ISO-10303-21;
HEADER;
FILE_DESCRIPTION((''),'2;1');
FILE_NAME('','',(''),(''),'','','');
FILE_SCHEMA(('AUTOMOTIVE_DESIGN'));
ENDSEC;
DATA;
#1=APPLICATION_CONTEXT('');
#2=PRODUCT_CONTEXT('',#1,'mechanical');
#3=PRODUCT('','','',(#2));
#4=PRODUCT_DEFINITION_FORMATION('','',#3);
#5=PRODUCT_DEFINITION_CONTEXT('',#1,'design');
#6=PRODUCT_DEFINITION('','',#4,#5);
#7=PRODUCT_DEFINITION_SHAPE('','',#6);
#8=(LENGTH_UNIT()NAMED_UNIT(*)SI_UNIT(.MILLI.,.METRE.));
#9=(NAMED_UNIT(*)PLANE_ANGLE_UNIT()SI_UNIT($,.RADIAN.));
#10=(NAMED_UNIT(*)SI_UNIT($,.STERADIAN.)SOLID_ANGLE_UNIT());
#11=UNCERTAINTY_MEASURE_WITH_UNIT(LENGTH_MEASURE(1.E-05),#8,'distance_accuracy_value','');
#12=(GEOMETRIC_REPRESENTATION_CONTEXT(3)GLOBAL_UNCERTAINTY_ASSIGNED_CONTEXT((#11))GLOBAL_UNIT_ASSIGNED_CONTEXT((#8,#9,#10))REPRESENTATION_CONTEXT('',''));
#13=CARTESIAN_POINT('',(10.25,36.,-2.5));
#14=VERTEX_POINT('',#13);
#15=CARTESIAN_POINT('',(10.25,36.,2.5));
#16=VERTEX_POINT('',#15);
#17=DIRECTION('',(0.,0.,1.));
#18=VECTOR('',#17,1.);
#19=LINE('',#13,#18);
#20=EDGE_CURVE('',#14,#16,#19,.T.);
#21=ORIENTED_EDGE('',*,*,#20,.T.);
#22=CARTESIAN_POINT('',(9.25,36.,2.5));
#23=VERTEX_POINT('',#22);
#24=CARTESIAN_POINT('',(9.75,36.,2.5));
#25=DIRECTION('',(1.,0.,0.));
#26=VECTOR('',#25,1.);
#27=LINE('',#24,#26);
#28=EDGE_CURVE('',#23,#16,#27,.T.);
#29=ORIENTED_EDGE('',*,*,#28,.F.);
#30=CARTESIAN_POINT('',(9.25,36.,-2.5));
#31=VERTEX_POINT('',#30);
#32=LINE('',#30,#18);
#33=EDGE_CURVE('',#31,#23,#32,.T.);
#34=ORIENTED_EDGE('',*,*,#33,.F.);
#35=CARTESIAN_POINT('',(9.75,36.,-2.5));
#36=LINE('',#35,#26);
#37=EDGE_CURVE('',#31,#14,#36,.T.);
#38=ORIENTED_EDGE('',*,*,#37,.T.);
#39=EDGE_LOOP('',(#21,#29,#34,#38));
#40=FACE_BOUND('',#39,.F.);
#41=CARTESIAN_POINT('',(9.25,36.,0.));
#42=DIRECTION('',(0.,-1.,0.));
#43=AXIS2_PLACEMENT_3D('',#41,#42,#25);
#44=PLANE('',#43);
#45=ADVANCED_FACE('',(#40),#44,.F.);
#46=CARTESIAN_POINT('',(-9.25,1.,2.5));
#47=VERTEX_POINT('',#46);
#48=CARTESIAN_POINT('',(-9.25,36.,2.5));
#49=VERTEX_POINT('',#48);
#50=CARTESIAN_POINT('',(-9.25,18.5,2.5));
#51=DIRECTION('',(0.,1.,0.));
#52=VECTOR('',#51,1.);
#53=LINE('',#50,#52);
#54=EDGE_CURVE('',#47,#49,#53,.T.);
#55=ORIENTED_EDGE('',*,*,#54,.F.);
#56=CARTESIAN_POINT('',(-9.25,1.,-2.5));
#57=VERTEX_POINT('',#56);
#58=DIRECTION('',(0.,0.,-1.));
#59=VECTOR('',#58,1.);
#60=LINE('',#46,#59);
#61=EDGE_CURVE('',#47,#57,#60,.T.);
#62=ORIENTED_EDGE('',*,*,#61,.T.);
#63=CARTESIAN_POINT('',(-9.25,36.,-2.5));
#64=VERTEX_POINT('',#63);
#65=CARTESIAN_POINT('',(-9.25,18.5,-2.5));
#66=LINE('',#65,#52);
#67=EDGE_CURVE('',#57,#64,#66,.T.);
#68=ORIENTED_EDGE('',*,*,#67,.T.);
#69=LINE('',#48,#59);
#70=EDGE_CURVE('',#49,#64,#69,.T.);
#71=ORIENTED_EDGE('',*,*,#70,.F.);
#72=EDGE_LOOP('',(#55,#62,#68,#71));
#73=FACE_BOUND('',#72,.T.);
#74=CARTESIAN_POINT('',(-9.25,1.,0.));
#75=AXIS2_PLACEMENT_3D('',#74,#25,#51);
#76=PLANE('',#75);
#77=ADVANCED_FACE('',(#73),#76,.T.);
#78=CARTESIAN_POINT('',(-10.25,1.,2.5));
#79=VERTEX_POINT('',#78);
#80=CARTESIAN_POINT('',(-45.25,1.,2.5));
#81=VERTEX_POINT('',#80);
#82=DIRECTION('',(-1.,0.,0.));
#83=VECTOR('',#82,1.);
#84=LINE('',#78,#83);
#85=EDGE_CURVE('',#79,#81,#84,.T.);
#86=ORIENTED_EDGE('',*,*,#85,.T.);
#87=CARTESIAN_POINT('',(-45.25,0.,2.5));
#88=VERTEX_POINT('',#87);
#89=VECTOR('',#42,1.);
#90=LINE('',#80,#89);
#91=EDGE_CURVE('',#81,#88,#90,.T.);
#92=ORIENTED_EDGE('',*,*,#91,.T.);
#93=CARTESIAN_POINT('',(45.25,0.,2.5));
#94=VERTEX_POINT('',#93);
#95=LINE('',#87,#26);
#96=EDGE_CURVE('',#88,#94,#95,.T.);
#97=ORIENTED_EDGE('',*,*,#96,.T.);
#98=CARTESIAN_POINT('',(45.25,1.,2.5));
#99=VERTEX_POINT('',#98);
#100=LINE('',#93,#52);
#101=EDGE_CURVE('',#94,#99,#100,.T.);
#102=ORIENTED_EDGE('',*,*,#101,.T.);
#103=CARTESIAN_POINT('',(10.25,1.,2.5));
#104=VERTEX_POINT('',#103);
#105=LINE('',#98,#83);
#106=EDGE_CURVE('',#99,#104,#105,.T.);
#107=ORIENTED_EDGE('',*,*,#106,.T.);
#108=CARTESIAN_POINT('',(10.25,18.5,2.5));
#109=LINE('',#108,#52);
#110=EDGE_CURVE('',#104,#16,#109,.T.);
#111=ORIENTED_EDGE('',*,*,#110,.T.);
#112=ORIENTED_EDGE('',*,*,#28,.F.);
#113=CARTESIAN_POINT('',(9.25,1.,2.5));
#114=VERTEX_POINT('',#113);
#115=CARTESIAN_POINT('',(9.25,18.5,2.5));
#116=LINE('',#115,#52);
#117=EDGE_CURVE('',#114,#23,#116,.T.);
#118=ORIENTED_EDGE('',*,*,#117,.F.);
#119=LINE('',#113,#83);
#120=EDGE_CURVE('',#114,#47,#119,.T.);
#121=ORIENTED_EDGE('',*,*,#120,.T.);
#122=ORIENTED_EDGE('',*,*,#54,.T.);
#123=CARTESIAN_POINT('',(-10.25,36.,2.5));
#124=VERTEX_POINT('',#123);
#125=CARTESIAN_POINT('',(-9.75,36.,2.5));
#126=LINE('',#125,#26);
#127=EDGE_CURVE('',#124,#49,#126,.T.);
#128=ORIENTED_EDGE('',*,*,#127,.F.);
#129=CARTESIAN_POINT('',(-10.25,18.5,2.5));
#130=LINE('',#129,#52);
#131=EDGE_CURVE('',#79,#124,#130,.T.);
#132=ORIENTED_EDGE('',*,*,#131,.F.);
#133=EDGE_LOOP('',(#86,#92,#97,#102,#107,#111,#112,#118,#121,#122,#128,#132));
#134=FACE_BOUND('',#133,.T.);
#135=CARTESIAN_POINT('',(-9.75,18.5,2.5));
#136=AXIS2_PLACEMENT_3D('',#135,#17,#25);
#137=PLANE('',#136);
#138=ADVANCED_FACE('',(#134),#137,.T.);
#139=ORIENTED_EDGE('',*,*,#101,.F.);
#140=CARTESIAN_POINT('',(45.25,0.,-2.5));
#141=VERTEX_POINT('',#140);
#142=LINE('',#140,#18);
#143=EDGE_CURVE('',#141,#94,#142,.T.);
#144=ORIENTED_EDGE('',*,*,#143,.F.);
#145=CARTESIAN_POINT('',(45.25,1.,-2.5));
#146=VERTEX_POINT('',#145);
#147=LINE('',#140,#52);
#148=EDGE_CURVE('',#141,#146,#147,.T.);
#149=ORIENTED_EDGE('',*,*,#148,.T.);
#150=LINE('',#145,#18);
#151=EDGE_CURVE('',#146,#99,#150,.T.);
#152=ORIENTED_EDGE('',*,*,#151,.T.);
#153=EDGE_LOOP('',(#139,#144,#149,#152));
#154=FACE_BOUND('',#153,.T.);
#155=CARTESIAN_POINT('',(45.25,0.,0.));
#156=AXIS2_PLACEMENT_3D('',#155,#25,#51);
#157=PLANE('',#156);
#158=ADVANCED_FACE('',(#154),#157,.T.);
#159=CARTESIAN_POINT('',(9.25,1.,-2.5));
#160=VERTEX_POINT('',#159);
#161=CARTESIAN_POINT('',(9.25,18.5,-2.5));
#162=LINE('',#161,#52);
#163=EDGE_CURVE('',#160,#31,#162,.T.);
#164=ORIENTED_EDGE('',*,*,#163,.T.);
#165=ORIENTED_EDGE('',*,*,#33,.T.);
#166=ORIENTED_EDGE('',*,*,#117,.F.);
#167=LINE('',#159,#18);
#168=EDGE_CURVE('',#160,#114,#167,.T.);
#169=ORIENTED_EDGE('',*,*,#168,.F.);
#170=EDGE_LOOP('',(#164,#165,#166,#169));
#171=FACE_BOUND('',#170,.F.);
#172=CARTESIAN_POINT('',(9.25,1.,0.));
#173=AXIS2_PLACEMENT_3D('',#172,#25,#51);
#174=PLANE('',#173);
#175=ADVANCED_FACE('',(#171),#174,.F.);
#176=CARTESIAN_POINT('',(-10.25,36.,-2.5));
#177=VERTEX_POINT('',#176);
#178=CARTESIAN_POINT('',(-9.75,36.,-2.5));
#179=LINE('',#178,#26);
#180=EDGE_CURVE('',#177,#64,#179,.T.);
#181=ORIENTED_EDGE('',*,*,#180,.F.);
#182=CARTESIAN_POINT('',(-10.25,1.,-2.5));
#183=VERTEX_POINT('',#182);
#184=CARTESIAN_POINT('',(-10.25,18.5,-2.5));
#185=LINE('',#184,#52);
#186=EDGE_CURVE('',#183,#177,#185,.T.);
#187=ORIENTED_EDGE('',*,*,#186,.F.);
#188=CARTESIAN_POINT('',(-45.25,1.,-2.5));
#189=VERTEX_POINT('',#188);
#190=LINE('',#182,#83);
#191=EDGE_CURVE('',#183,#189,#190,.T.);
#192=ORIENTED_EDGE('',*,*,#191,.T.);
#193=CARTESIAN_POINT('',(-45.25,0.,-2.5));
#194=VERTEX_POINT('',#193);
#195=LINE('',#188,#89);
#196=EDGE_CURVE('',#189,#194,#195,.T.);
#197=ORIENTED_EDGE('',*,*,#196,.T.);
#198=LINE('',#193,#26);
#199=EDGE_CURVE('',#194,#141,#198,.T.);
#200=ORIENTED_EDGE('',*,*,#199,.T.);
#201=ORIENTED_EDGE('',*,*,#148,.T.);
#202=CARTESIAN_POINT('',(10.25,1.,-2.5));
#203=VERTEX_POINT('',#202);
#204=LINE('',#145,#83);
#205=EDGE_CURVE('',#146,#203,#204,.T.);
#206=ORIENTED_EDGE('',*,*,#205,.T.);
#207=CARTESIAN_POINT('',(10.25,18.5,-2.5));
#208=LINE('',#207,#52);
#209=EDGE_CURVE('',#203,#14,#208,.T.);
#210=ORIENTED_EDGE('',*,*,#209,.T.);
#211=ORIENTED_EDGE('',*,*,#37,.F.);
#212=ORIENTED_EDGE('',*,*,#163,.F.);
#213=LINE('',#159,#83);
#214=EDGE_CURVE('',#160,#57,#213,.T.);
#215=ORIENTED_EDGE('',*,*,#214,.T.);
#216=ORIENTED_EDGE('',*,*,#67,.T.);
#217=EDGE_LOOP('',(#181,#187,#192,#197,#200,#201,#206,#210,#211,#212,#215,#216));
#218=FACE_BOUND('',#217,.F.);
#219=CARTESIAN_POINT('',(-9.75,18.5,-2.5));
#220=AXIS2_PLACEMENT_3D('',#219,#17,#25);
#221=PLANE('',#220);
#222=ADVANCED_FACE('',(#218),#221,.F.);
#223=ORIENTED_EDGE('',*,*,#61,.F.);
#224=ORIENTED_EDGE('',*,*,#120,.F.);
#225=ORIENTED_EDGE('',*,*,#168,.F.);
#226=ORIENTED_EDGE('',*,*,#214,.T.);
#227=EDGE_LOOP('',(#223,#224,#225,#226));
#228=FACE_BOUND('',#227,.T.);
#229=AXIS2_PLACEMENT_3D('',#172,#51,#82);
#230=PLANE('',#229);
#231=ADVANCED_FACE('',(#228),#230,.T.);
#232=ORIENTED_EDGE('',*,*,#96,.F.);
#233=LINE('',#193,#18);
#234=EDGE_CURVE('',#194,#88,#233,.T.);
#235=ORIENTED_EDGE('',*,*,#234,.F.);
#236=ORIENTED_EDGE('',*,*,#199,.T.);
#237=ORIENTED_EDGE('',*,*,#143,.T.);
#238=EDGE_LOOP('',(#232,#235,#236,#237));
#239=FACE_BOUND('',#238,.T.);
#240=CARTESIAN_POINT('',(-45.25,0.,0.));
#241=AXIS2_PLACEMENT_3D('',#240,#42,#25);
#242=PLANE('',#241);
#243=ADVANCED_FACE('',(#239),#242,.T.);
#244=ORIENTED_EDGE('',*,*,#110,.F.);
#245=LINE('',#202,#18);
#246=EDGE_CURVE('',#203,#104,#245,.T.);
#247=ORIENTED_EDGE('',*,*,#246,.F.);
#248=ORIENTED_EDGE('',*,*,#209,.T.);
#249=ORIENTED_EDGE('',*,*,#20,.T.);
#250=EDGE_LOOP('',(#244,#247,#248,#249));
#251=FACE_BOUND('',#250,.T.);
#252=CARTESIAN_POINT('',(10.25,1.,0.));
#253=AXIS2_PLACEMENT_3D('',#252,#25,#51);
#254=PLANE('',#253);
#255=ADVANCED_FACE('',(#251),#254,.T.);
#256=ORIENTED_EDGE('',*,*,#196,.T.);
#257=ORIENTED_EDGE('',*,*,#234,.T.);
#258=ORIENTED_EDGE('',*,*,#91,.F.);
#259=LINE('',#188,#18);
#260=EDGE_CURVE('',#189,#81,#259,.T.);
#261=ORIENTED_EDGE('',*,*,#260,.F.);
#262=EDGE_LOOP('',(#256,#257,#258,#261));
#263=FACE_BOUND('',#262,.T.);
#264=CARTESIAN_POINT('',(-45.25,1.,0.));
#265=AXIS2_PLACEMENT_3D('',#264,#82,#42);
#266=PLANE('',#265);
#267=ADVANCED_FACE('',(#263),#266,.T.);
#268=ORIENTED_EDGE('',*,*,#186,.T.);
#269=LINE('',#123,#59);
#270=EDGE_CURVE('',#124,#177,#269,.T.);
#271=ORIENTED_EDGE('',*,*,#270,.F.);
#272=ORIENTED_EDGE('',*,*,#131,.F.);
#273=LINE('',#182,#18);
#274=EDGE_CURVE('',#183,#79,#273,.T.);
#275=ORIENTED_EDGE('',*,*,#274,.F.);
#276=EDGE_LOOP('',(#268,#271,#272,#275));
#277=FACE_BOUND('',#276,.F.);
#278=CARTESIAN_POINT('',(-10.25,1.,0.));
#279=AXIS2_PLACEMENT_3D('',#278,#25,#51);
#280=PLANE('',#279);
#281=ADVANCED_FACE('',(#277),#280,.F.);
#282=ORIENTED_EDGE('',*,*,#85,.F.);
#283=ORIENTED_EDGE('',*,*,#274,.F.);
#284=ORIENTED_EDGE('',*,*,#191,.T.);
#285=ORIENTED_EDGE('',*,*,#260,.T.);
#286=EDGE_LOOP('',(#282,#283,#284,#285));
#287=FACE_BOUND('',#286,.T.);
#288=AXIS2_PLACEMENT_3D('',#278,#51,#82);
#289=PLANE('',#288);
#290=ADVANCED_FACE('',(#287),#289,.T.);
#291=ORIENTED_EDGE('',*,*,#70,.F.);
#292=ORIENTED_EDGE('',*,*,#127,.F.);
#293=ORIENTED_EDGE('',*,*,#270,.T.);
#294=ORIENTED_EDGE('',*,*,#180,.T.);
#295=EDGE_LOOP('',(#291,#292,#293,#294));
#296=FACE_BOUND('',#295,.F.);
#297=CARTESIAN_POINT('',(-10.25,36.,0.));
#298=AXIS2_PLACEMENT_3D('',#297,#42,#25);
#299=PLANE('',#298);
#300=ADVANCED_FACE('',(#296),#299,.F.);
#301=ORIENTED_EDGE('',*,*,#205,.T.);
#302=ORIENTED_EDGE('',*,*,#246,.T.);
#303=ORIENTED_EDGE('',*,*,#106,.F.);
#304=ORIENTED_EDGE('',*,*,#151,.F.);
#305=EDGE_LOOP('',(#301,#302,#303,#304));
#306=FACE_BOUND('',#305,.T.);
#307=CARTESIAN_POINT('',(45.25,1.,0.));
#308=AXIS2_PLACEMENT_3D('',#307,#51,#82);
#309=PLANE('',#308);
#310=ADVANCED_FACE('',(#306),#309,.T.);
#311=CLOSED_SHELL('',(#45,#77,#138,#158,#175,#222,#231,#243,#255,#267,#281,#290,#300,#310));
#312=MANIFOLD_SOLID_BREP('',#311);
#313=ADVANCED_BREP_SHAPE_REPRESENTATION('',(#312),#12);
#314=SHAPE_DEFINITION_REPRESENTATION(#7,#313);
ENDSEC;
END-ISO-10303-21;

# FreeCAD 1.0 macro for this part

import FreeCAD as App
import Part
import Sketcher

doc = App.newDocument("Part")
params = doc.addObject("Spreadsheet::Sheet", "Params")
for row, (alias, value) in enumerate([
    ("sketch1_width", "35 mm"),
    ("sketch1_width2", "1 mm"),
    ("sketch1_width3", "90.5 mm"),
    ("pad1_length", "5 mm"),
], start=1):
    params.set(f"A{row}", alias)
    params.set(f"B{row}", "=" + value)
    params.setAlias(f"B{row}", alias)

body = doc.addObject("PartDesign::Body", "Body")

sketch1 = doc.addObject("Sketcher::SketchObject", "Sketch")
body.addObject(sketch1)
sketch1.AttachmentSupport = (doc.XY_Plane, [""])
sketch1.MapMode = "FlatFace"
sketch1.addGeometry([
    Part.LineSegment(App.Vector(-10.2, 36, 0), App.Vector(-10.2, 1, 0)),
    Part.LineSegment(App.Vector(-10.2, 1, 0), App.Vector(-45.2, 1, 0)),
    Part.LineSegment(App.Vector(-45.2, 1, 0), App.Vector(-45.2, 0, 0)),
    Part.LineSegment(App.Vector(-45.2, 0, 0), App.Vector(45.2, 0, 0)),
    Part.LineSegment(App.Vector(45.2, 0, 0), App.Vector(45.2, 1, 0)),
    Part.LineSegment(App.Vector(45.2, 1, 0), App.Vector(10.2, 1, 0)),
    Part.LineSegment(App.Vector(10.2, 1, 0), App.Vector(10.2, 36, 0)),
    Part.LineSegment(App.Vector(10.2, 36, 0), App.Vector(9.2, 36, 0)),
    Part.LineSegment(App.Vector(9.2, 36, 0), App.Vector(9.2, 1, 0)),
    Part.LineSegment(App.Vector(9.2, 1, 0), App.Vector(-9.2, 1, 0)),
    Part.LineSegment(App.Vector(-9.2, 1, 0), App.Vector(-9.2, 36, 0)),
    Part.LineSegment(App.Vector(-9.2, 36, 0), App.Vector(-10.2, 36, 0)),
], False)
sketch1.addConstraint([
    Sketcher.Constraint("Coincident", 0, 2, 1, 1),
    Sketcher.Constraint("Coincident", 1, 2, 2, 1),
    Sketcher.Constraint("Coincident", 2, 2, 3, 1),
    Sketcher.Constraint("Coincident", 3, 2, 4, 1),
    Sketcher.Constraint("Coincident", 4, 2, 5, 1),
    Sketcher.Constraint("Coincident", 5, 2, 6, 1),
    Sketcher.Constraint("Coincident", 6, 2, 7, 1),
    Sketcher.Constraint("Coincident", 7, 2, 8, 1),
    Sketcher.Constraint("Coincident", 8, 2, 9, 1),
    Sketcher.Constraint("Coincident", 9, 2, 10, 1),
    Sketcher.Constraint("Coincident", 10, 2, 11, 1),
    Sketcher.Constraint("Coincident", 11, 2, 0, 1),
    Sketcher.Constraint("Vertical", 0),
    Sketcher.Constraint("Horizontal", 1),
    Sketcher.Constraint("Vertical", 2),
    Sketcher.Constraint("Horizontal", 3),
    Sketcher.Constraint("Vertical", 4),
    Sketcher.Constraint("Horizontal", 5),
    Sketcher.Constraint("Vertical", 6),
    Sketcher.Constraint("Horizontal", 7),
    Sketcher.Constraint("Vertical", 8),
    Sketcher.Constraint("Horizontal", 9),
    Sketcher.Constraint("Vertical", 10),
    Sketcher.Constraint("Horizontal", 11),
    Sketcher.Constraint("Symmetric", 2, 2, 3, 2, -1, 1),
    Sketcher.Constraint("Symmetric", 0, 2, 5, 2, -2),
    Sketcher.Constraint("Symmetric", 7, 2, 10, 2, -2),
    Sketcher.Constraint("Horizontal", 5, 2, 8, 2),
    Sketcher.Constraint("Equal", 5, 0),
    Sketcher.Constraint("Equal", 11, 2),
    Sketcher.Constraint("DistanceX", 1, 2, 1, 1, 35.0),
    Sketcher.Constraint("DistanceX", 7, 2, 7, 1, 1.0),
    Sketcher.Constraint("DistanceX", 3, 1, 3, 2, 90.5),
])
sketch1.setExpression("Constraints[30]", "Params.sketch1_width")
sketch1.setExpression("Constraints[31]", "Params.sketch1_width2")
sketch1.setExpression("Constraints[32]", "Params.sketch1_width3")
pad1 = doc.addObject("PartDesign::Pad", "Pad")
body.addObject(pad1)
pad1.Profile = sketch1
pad1.setExpression("Length", "Params.pad1_length")
pad1.Midplane = True

doc.recompute()
